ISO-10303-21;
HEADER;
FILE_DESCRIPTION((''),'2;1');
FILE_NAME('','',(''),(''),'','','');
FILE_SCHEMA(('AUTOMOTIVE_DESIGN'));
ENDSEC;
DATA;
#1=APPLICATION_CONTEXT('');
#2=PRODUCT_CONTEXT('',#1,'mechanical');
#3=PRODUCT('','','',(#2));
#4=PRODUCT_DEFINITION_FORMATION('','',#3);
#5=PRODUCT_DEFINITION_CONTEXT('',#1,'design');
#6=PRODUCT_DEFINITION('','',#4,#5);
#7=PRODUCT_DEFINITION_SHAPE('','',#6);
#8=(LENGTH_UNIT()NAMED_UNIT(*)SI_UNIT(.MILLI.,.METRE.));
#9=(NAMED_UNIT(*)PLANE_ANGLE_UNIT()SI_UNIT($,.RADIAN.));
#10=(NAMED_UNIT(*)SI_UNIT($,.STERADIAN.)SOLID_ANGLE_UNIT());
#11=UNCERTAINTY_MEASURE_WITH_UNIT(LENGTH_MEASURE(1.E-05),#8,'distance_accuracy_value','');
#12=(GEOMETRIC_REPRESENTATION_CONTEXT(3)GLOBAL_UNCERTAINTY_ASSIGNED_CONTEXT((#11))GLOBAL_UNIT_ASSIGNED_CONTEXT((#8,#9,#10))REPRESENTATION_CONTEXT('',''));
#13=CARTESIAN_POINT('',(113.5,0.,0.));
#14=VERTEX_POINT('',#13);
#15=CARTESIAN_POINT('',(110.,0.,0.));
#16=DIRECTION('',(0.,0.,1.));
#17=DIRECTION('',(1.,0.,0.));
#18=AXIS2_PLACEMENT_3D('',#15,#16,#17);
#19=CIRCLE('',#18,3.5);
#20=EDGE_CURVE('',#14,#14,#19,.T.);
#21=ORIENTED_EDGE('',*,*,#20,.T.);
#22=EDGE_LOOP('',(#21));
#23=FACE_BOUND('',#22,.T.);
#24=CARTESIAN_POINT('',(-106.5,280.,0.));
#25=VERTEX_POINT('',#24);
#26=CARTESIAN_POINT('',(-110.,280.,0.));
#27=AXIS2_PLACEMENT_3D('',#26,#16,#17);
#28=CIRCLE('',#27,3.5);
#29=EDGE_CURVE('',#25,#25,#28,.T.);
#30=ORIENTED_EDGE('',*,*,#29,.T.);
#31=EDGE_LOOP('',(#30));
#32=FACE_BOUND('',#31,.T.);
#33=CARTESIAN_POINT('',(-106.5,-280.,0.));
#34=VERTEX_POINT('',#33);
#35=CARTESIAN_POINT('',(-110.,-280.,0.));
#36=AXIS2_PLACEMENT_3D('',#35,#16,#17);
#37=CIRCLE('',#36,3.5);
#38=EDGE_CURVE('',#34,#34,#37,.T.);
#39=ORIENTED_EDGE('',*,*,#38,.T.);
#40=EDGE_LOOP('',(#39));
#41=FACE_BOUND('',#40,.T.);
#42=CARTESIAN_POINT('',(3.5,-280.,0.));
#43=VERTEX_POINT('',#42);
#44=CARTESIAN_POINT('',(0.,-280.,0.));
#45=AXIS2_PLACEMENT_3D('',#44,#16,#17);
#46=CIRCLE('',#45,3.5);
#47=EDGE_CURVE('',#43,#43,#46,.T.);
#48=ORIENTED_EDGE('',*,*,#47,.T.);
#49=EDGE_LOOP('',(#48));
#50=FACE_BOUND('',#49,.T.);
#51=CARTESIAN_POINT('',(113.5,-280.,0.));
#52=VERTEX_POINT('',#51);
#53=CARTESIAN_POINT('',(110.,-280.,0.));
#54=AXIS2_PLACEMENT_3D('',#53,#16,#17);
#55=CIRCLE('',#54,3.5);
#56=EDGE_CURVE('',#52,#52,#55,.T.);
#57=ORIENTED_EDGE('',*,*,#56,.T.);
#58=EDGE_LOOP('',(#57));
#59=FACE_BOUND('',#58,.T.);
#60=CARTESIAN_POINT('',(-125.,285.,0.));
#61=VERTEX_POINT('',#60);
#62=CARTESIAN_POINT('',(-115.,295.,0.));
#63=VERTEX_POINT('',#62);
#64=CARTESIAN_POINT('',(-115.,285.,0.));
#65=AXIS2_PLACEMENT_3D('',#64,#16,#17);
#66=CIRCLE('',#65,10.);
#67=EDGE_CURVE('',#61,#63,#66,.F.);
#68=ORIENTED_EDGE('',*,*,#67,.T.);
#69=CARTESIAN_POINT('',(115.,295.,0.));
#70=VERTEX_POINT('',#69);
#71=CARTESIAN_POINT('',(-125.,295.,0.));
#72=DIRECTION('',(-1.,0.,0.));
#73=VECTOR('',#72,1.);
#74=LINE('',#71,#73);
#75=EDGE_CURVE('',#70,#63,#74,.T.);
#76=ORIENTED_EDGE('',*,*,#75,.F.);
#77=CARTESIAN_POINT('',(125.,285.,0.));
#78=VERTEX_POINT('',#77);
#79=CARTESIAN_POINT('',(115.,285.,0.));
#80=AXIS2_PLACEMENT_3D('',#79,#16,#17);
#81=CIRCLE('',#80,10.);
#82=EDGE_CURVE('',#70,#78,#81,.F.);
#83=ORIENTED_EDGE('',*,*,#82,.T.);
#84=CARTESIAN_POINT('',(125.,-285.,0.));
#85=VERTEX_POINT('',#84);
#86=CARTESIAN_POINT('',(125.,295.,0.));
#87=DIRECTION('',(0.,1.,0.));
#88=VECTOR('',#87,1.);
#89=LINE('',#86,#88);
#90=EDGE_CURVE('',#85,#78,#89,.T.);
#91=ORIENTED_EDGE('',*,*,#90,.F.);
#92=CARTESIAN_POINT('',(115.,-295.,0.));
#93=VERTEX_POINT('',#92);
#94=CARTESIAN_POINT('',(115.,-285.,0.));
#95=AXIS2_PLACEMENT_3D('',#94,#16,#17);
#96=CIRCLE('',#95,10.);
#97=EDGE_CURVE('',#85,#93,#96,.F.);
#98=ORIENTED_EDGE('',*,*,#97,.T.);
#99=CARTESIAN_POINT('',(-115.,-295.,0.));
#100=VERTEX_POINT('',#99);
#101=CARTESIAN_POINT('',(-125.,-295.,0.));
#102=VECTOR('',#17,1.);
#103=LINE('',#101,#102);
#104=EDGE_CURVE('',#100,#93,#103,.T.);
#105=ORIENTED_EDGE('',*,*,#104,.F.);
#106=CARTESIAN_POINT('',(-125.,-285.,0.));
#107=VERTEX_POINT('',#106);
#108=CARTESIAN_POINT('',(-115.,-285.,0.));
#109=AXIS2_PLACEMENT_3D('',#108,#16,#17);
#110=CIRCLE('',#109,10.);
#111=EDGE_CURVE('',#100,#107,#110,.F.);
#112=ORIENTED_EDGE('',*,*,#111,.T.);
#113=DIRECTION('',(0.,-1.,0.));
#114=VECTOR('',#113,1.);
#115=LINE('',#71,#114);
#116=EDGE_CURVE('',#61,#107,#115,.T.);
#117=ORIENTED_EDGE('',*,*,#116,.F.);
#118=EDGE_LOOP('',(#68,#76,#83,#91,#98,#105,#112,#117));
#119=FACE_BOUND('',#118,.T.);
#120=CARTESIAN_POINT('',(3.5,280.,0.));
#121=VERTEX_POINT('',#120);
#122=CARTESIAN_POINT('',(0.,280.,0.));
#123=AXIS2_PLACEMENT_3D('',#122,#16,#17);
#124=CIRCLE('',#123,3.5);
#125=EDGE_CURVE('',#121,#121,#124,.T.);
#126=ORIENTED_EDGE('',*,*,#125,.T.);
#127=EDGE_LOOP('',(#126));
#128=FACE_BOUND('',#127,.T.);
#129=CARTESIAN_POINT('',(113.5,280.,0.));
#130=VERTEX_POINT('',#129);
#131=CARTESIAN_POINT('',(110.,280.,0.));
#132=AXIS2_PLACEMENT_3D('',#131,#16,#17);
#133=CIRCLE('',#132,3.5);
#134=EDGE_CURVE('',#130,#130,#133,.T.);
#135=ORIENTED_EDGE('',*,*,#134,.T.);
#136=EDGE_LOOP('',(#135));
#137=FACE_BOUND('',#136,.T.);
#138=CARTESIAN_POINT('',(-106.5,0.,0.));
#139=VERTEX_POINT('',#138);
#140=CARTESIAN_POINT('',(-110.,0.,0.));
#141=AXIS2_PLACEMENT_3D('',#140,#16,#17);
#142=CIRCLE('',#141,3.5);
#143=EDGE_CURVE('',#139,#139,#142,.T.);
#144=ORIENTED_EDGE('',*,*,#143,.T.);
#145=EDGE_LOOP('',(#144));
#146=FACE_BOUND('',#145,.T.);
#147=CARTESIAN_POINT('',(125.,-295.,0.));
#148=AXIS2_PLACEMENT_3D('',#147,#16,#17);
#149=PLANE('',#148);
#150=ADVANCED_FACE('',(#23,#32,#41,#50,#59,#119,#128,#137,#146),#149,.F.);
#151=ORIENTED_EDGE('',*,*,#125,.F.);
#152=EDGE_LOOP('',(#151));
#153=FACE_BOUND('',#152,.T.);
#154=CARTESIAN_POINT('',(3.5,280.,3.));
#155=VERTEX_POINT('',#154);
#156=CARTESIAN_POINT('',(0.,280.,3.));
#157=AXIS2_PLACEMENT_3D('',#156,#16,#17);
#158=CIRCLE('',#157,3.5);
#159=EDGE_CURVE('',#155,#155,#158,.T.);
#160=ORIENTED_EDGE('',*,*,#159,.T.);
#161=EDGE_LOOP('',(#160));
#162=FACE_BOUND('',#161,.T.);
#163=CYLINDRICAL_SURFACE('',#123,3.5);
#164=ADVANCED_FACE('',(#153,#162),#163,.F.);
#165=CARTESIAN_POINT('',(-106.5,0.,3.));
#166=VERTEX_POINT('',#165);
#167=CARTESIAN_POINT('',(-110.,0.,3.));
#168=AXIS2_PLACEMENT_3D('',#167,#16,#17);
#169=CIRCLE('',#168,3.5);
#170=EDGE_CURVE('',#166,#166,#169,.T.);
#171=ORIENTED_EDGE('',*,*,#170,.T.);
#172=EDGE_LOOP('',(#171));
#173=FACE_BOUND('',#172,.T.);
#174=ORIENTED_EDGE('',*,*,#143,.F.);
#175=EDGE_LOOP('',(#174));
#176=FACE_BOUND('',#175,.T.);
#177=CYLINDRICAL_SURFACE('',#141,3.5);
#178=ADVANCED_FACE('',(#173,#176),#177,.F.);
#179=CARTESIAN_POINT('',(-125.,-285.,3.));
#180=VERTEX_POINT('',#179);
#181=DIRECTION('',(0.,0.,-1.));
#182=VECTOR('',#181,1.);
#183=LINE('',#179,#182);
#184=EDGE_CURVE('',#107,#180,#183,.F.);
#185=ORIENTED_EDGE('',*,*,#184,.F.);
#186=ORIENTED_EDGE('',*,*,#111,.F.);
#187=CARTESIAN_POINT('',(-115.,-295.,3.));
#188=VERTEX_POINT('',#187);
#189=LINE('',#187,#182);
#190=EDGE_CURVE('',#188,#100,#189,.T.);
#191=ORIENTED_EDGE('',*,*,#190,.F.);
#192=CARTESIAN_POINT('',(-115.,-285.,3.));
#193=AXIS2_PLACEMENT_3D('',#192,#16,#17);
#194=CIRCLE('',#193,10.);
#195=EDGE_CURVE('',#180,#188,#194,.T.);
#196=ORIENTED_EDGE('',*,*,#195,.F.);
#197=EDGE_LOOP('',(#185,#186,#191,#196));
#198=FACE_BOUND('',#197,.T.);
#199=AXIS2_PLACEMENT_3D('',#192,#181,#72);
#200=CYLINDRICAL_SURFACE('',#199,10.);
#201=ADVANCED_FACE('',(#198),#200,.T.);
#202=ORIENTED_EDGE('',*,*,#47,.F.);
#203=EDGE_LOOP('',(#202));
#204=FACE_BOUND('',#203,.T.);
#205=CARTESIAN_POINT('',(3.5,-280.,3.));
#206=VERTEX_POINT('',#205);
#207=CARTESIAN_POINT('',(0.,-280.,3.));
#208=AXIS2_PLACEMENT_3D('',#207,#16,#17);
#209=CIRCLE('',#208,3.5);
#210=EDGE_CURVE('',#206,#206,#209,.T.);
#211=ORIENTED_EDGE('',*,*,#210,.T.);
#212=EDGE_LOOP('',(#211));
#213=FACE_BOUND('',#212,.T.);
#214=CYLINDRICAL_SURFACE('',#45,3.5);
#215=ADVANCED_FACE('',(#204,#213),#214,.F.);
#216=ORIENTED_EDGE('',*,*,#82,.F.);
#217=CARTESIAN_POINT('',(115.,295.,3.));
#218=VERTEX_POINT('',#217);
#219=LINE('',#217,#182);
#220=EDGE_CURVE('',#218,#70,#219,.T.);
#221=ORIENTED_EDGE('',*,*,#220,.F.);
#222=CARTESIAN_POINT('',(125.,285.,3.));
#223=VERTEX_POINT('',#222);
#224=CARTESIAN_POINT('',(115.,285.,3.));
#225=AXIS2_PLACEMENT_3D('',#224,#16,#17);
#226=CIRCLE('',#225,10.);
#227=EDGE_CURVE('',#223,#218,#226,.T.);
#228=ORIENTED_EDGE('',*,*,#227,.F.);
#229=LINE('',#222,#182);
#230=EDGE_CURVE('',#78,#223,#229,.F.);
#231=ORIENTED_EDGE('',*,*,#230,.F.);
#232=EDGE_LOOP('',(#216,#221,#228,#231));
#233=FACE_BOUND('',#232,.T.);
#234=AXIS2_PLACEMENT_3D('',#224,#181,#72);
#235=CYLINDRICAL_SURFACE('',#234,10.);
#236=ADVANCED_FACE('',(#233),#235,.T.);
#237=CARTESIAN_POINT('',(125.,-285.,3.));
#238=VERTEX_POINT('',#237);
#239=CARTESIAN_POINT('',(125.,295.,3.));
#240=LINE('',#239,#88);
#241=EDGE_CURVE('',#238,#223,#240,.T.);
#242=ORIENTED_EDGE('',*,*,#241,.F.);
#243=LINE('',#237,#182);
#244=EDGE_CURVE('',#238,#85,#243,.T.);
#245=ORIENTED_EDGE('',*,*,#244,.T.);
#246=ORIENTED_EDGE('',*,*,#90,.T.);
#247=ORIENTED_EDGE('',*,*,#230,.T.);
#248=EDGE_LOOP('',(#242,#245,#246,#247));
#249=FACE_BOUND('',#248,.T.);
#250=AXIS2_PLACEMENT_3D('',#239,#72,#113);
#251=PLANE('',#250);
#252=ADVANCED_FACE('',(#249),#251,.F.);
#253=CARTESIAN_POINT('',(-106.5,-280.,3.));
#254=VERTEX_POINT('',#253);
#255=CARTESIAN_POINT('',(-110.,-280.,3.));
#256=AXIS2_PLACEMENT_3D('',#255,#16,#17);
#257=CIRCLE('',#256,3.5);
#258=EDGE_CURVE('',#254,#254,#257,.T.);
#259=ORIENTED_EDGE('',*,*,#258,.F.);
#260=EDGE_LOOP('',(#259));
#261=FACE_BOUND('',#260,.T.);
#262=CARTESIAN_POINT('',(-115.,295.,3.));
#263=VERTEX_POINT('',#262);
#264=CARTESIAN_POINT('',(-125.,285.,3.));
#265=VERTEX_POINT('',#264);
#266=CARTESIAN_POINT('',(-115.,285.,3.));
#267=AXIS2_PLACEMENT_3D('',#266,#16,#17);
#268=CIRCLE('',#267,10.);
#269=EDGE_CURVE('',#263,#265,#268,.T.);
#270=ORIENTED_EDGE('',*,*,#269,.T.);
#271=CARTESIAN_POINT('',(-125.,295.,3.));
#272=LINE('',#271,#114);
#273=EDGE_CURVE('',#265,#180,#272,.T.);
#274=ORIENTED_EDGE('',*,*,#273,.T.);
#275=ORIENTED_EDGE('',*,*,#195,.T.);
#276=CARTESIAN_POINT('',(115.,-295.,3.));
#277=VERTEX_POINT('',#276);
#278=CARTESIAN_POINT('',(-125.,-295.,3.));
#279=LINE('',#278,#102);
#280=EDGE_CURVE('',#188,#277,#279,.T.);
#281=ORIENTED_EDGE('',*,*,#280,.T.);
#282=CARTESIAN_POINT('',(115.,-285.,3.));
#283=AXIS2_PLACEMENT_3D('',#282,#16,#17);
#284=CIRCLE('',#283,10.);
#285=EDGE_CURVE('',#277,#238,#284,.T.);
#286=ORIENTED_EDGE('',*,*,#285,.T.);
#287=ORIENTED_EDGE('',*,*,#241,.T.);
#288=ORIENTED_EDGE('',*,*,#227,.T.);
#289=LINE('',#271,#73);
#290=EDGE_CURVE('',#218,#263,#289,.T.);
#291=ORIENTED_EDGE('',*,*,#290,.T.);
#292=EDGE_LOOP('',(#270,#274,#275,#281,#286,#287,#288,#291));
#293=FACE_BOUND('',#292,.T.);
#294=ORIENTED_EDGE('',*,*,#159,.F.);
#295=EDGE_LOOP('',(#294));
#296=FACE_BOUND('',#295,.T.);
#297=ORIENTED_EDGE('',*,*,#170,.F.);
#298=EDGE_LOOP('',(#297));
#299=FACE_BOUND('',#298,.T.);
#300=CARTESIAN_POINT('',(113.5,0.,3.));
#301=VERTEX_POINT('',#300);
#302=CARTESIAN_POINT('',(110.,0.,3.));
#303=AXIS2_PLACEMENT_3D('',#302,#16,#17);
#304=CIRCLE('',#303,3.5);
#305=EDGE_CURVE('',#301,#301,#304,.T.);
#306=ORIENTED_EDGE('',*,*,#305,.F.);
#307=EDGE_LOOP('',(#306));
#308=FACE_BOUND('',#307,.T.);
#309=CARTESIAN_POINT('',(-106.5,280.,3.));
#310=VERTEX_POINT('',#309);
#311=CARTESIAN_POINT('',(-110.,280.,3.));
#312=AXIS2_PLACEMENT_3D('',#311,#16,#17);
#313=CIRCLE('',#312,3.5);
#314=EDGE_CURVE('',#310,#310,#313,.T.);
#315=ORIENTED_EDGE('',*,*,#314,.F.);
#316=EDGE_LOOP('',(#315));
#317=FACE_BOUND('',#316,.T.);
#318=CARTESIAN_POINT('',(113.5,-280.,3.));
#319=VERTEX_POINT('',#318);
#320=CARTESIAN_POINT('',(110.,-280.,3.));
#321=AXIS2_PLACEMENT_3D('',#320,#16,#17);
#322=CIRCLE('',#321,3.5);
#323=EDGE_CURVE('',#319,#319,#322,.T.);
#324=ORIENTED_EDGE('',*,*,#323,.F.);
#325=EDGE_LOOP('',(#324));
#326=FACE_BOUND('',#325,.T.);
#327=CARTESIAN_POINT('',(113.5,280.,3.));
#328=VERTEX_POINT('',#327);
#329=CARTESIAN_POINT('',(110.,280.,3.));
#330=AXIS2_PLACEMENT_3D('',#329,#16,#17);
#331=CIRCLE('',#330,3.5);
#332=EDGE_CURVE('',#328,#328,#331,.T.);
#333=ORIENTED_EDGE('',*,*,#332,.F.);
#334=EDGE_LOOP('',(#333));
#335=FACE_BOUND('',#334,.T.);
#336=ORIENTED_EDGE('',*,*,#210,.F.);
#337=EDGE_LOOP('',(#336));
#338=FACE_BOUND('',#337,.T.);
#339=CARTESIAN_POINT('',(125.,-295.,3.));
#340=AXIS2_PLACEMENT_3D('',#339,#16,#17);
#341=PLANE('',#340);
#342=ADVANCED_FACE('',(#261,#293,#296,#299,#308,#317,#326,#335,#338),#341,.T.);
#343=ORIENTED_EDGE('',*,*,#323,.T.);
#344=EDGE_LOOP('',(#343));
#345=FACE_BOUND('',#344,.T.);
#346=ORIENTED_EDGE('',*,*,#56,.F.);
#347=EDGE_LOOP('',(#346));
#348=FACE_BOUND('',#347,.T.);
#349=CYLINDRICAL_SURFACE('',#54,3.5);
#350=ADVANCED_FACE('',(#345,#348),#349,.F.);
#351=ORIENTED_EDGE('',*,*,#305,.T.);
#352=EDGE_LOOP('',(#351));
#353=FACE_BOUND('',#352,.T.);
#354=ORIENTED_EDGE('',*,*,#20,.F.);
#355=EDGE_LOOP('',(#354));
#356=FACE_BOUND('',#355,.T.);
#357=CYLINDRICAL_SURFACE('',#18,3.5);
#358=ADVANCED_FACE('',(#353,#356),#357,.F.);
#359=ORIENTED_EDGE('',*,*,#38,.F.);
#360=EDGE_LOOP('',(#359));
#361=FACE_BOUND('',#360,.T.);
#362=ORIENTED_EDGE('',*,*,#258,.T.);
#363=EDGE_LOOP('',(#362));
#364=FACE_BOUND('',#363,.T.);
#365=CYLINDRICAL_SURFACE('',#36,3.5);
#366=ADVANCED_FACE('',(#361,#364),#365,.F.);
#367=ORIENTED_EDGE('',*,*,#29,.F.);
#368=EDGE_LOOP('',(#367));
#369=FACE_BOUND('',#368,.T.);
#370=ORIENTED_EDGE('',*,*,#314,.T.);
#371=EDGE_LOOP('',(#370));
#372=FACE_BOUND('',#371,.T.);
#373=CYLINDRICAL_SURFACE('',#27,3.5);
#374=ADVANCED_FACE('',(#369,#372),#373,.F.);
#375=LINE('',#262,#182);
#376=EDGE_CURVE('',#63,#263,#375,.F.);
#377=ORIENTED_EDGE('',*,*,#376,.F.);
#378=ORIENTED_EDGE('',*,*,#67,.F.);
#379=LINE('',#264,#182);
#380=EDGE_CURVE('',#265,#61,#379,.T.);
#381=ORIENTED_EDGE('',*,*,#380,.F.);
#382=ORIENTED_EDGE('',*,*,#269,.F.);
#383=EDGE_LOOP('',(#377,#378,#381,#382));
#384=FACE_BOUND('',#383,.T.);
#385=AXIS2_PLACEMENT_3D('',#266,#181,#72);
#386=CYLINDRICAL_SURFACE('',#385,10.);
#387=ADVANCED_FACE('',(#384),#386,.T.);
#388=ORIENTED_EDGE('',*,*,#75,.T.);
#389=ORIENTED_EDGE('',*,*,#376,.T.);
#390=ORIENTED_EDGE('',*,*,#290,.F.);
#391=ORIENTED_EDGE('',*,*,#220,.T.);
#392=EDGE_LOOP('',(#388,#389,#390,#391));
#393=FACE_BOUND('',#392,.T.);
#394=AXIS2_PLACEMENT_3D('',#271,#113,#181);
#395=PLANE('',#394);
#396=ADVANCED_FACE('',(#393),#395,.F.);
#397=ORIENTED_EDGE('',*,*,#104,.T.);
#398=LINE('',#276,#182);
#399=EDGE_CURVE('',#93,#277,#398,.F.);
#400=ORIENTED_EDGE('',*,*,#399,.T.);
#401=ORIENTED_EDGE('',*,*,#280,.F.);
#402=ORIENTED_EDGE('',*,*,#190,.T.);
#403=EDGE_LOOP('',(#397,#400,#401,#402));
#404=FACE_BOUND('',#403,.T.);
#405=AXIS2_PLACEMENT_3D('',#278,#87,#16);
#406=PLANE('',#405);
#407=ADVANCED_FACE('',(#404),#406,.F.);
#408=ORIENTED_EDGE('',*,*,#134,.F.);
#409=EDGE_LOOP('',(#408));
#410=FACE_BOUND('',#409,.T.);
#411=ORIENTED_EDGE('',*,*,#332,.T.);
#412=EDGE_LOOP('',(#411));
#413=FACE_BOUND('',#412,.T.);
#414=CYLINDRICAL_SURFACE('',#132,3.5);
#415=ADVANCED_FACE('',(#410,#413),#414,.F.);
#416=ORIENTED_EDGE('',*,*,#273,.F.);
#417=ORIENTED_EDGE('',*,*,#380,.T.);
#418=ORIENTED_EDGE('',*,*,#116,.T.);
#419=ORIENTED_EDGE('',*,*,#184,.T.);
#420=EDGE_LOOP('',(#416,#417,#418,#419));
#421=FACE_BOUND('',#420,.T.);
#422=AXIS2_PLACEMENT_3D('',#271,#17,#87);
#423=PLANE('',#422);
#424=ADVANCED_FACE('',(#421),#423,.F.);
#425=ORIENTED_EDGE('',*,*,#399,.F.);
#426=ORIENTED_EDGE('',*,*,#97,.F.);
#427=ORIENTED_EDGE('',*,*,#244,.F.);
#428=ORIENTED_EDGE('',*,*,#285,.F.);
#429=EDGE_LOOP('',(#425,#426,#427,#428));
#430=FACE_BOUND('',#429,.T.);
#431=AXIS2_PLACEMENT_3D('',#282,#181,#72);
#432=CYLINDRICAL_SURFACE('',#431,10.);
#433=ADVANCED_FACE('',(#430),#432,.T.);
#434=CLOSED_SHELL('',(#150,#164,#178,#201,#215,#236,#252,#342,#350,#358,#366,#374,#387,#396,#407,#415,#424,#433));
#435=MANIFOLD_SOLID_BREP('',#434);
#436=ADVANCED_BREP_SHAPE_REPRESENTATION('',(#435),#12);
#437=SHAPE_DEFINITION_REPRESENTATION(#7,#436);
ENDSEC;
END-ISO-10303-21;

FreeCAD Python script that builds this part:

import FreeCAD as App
import Part
import Sketcher

V = App.Vector


def edges_at(feature, points):
    """Names of the edges that pass closest to the given points."""
    edges = feature.Shape.Edges
    near = lambda p: min(range(len(edges)), key=lambda i: edges[i].distToShape(Part.Vertex(*p))[0])
    return sorted({f"Edge{near(p) + 1}" for p in points})


def add_polygon(sketch, points):
    """Adds a closed chain of lines whose ends are joined by coincident constraints."""
    first, n = sketch.GeometryCount, len(points)
    for a, b in zip(points, points[1:] + points[:1]):
        sketch.addGeometry(Part.LineSegment(App.Vector(*a, 0), App.Vector(*b, 0)), False)
    for i in range(n):
        sketch.addConstraint(Sketcher.Constraint("Coincident", first + i, 2, first + (i + 1) % n, 1))

doc = App.newDocument("Part")
body = doc.addObject("PartDesign::Body", "Body")

# Sketch on XY plane
sketch1 = body.newObject("Sketcher::SketchObject", "Sketch")
sketch1.AttachmentSupport = (doc.getObject("XY_Plane"), [""])
sketch1.MapMode = "FlatFace"
add_polygon(sketch1, [(-125, 295), (-125, -295), (125, -295), (125, 295)])  # lines 0-3
sketch1.addConstraint([
    Sketcher.Constraint("Vertical", 0),
    Sketcher.Constraint("Horizontal", 1),
    Sketcher.Constraint("Vertical", 2),
    Sketcher.Constraint("Horizontal", 3),
    Sketcher.Constraint("Symmetric", 0, 2, 2, 2, -1, 1),
    Sketcher.Constraint("DistanceX", 1, 1, 1, 2, 250.0),
    Sketcher.Constraint("DistanceY", 0, 2, 0, 1, 590.0),
])
pad1 = body.newObject("PartDesign::Pad", "Pad")
pad1.Profile = sketch1
pad1.Length = 3
doc.recompute()

fillet = body.newObject("PartDesign::Fillet", "Fillet")
fillet.Base = (pad1, edges_at(pad1, [
    (125, -295, 1.5),
    (-125, -295, 1.5),
    (-125, 295, 1.5),
    (125, 295, 1.5),
]))
fillet.Radius = 10

# Sketch on XY plane
sketch2 = body.newObject("Sketcher::SketchObject", "Sketch001")
sketch2.AttachmentSupport = (doc.getObject("XY_Plane"), [""])
sketch2.MapMode = "FlatFace"
sketch2.AttachmentOffset = App.Placement(V(0, 0, 3), App.Rotation())
sketch2.addGeometry([
    Part.Circle(V(-110, 280, 0), V(0, 0, 1), 3.5),  # 0
    Part.Circle(V(-110, -280, 0), V(0, 0, 1), 3.5),  # 1
    Part.Circle(V(110, 280, 0), V(0, 0, 1), 3.5),  # 2
    Part.Circle(V(110, -280, 0), V(0, 0, 1), 3.5),  # 3
    Part.Circle(V(-110, 0, 0), V(0, 0, 1), 3.5),  # 4
    Part.Circle(V(110, 0, 0), V(0, 0, 1), 3.5),  # 5
    Part.Circle(V(0, 280, 0), V(0, 0, 1), 3.5),  # 6
    Part.Circle(V(0, -280, 0), V(0, 0, 1), 3.5),  # 7
], False)
sketch2.addConstraint([
    Sketcher.Constraint("Equal", 0, 1),
    Sketcher.Constraint("Equal", 1, 2),
    Sketcher.Constraint("Equal", 2, 3),
    Sketcher.Constraint("Equal", 3, 4),
    Sketcher.Constraint("Equal", 4, 5),
    Sketcher.Constraint("Equal", 5, 6),
    Sketcher.Constraint("Equal", 6, 7),
    Sketcher.Constraint("Symmetric", 1, 3, 2, 3, -1, 1),
    Sketcher.Constraint("Symmetric", 0, 3, 3, 3, -1, 1),
    Sketcher.Constraint("Symmetric", 4, 3, 5, 3, -1, 1),
    Sketcher.Constraint("Symmetric", 6, 3, 7, 3, -1, 1),
    Sketcher.Constraint("Symmetric", 0, 3, 2, 3, -2),
    Sketcher.Constraint("PointOnObject", 4, 3, -1),
    Sketcher.Constraint("PointOnObject", 6, 3, -2),
    Sketcher.Constraint("Horizontal", 2, 3, 6, 3),
    Sketcher.Constraint("Vertical", 1, 3, 4, 3),
    Sketcher.Constraint("Diameter", 0, 7.0),
    Sketcher.Constraint("DistanceX", 0, 3, -1, 1, 110.0),
    Sketcher.Constraint("DistanceY", -1, 1, 0, 3, 280.0),
])
pocket1 = body.newObject("PartDesign::Pocket", "Pocket")
pocket1.Profile = sketch2
pocket1.Length = 3

doc.recompute()
